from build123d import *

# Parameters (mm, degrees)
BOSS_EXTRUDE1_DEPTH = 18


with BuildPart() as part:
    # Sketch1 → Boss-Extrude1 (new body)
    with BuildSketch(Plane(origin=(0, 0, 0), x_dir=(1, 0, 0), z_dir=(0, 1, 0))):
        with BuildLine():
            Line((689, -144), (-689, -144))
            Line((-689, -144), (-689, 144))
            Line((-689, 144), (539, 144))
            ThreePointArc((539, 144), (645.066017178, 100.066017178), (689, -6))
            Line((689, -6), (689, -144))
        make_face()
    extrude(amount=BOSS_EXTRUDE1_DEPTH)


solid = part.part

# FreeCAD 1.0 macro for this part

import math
import FreeCAD as App
import Part
import Sketcher
from FreeCAD import Vector
Q = App.Units.Quantity

doc = App.newDocument("Part")
body = doc.addObject("PartDesign::Body", "Body")

sketch1 = doc.addObject("Sketcher::SketchObject", "Sketch")
body.addObject(sketch1)
sketch1.AttachmentSupport = (doc.XZ_Plane, [""])
sketch1.MapMode = "FlatFace"
sketch1.addGeometry([
    Part.LineSegment(Vector(-689, 144, 0), Vector(689, 144, 0)),
    Part.LineSegment(Vector(689, 144, 0), Vector(689, 6, 0)),
    Part.ArcOfCircle(Part.Circle(Vector(539, 6, 0), Vector(0, 0, 1), 150), math.radians(-90), math.radians(0)),
    Part.LineSegment(Vector(539, -144, 0), Vector(-689, -144, 0)),
    Part.LineSegment(Vector(-689, -144, 0), Vector(-689, 144, 0)),
], False)
sketch1.addConstraint([
    Sketcher.Constraint("Coincident", 0, 2, 1, 1),
    Sketcher.Constraint("Tangent", 1, 2, 2, 2),
    Sketcher.Constraint("Tangent", 2, 1, 3, 1),
    Sketcher.Constraint("Coincident", 3, 2, 4, 1),
    Sketcher.Constraint("Coincident", 4, 2, 0, 1),
    Sketcher.Constraint("Horizontal", 0),
    Sketcher.Constraint("Vertical", 1),
    Sketcher.Constraint("Horizontal", 3),
    Sketcher.Constraint("Vertical", 4),
    Sketcher.Constraint("Symmetric", 0, 2, 3, 2, -1, 1),
    Sketcher.Constraint("Radius", 2, Q("150 mm")),
    Sketcher.Constraint("DistanceX", 0, 1, 0, 2, Q("1378 mm")),
    Sketcher.Constraint("DistanceY", 1, 2, 1, 1, Q("138 mm")),
])
pad1 = doc.addObject("PartDesign::Pad", "Pad")
body.addObject(pad1)
pad1.Profile = sketch1
pad1.Length = 18
pad1.Reversed = True

doc.recompute()
